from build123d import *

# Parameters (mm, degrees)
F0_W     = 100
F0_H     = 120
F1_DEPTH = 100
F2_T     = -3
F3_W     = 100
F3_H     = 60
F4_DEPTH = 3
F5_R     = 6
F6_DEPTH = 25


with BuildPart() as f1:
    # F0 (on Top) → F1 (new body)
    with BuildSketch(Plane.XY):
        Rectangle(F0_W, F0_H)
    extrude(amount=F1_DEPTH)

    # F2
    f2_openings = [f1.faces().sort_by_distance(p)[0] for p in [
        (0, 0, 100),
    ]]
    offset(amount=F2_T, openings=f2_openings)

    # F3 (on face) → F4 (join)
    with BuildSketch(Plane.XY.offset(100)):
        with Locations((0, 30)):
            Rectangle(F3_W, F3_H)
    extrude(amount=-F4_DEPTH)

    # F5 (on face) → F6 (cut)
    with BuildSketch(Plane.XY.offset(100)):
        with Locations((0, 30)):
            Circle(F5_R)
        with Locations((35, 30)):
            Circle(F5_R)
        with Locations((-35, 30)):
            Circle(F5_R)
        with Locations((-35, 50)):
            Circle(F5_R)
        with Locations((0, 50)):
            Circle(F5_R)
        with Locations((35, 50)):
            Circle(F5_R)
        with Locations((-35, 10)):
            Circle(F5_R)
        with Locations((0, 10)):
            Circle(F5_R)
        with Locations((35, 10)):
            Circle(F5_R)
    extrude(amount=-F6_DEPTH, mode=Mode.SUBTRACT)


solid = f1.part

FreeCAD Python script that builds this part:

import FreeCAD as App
import Part
import Sketcher

V = App.Vector


def faces_at(feature, points):
    """Names of the faces that lie closest to the given points."""
    faces = feature.Shape.Faces
    near = lambda p: min(range(len(faces)), key=lambda i: faces[i].distToShape(Part.Vertex(*p))[0])
    return sorted({f"Face{near(p) + 1}" for p in points})


def add_polygon(sketch, points):
    """Adds a closed chain of lines whose ends are joined by coincident constraints."""
    first, n = sketch.GeometryCount, len(points)
    for a, b in zip(points, points[1:] + points[:1]):
        sketch.addGeometry(Part.LineSegment(App.Vector(*a, 0), App.Vector(*b, 0)), False)
    for i in range(n):
        sketch.addConstraint(Sketcher.Constraint("Coincident", first + i, 2, first + (i + 1) % n, 1))

doc = App.newDocument("Part")
params = doc.addObject("Spreadsheet::Sheet", "Params")
for row, (alias, value) in enumerate([
    ("sketch1_width", "100 mm"),
    ("sketch1_height", "120 mm"),
    ("pad1_length", "100 mm"),
    ("thickness_wall", "3 mm"),
    ("sketch2_width", "100 mm"),
    ("sketch2_height", "60 mm"),
    ("pad2_length", "3 mm"),
    ("sketch3_diameter", "12 mm"),
    ("pocket1_length", "25 mm"),
], start=1):
    params.set(f"A{row}", alias)
    params.set(f"B{row}", "=" + value)
    params.setAlias(f"B{row}", alias)

body = doc.addObject("PartDesign::Body", "Body")

sketch1 = body.newObject("Sketcher::SketchObject", "Sketch")
sketch1.AttachmentSupport = (doc.getObject("XY_Plane"), [""])
sketch1.MapMode = "FlatFace"
add_polygon(sketch1, [(-50, 60), (-50, -60), (50, -60), (50, 60)])
sketch1.addConstraint([
    Sketcher.Constraint("Vertical", 0),
    Sketcher.Constraint("Horizontal", 1),
    Sketcher.Constraint("Vertical", 2),
    Sketcher.Constraint("Horizontal", 3),
    Sketcher.Constraint("Symmetric", 0, 2, 2, 2, -1, 1),
    Sketcher.Constraint("DistanceX", 1, 1, 1, 2, 100.0),
    Sketcher.Constraint("DistanceY", 0, 2, 0, 1, 120.0),
])
sketch1.setExpression("Constraints[9]", "Params.sketch1_width")
sketch1.setExpression("Constraints[10]", "Params.sketch1_height")
pad1 = body.newObject("PartDesign::Pad", "Pad")
pad1.Profile = sketch1
pad1.setExpression("Length", "Params.pad1_length")
doc.recompute()

thickness = body.newObject("PartDesign::Thickness", "Thickness")
thickness.Base = (pad1, faces_at(pad1, [(0, 0, 100)]))
thickness.setExpression("Value", "Params.thickness_wall")
thickness.Reversed = True
thickness.Join = "Arc"

sketch2 = body.newObject("Sketcher::SketchObject", "Sketch001")
sketch2.AttachmentSupport = (doc.getObject("XY_Plane"), [""])
sketch2.MapMode = "FlatFace"
sketch2.AttachmentOffset = App.Placement(V(0, 0, 100), App.Rotation())
add_polygon(sketch2, [(-50, 60), (-50, 0), (50, 0), (50, 60)])
sketch2.addConstraint([
    Sketcher.Constraint("Vertical", 0),
    Sketcher.Constraint("Horizontal", 1),
    Sketcher.Constraint("Vertical", 2),
    Sketcher.Constraint("Horizontal", 3),
    Sketcher.Constraint("Symmetric", 0, 2, 1, 2, -1, 1),
    Sketcher.Constraint("DistanceX", 1, 1, 1, 2, 100.0),
    Sketcher.Constraint("DistanceY", 0, 2, 0, 1, 60.0),
])
sketch2.setExpression("Constraints[9]", "Params.sketch2_width")
sketch2.setExpression("Constraints[10]", "Params.sketch2_height")
pad2 = body.newObject("PartDesign::Pad", "Pad001")
pad2.Profile = sketch2
pad2.setExpression("Length", "Params.pad2_length")
pad2.Reversed = True

sketch3 = body.newObject("Sketcher::SketchObject", "Sketch002")
sketch3.AttachmentSupport = (doc.getObject("XY_Plane"), [""])
sketch3.MapMode = "FlatFace"
sketch3.AttachmentOffset = App.Placement(V(0, 0, 100), App.Rotation())
sketch3.addGeometry([
    Part.Circle(V(0, 30, 0), V(0, 0, 1), 6),
    Part.Circle(V(35, 30, 0), V(0, 0, 1), 6),
    Part.Circle(V(-35, 30, 0), V(0, 0, 1), 6),
    Part.Circle(V(-35, 50, 0), V(0, 0, 1), 6),
    Part.Circle(V(0, 50, 0), V(0, 0, 1), 6),
    Part.Circle(V(35, 50, 0), V(0, 0, 1), 6),
    Part.Circle(V(-35, 10, 0), V(0, 0, 1), 6),
    Part.Circle(V(0, 10, 0), V(0, 0, 1), 6),
    Part.Circle(V(35, 10, 0), V(0, 0, 1), 6),
], False)
sketch3.addConstraint([
    Sketcher.Constraint("Equal", 0, 1),
    Sketcher.Constraint("Equal", 1, 2),
    Sketcher.Constraint("Equal", 2, 3),
    Sketcher.Constraint("Equal", 3, 4),
    Sketcher.Constraint("Equal", 4, 5),
    Sketcher.Constraint("Equal", 5, 6),
    Sketcher.Constraint("Equal", 6, 7),
    Sketcher.Constraint("Equal", 7, 8),
    Sketcher.Constraint("Symmetric", 1, 3, 2, 3, -2),
    Sketcher.Constraint("Symmetric", 3, 3, 5, 3, -2),
    Sketcher.Constraint("Symmetric", 6, 3, 8, 3, -2),
    Sketcher.Constraint("PointOnObject", 0, 3, -2),
    Sketcher.Constraint("PointOnObject", 4, 3, -2),
    Sketcher.Constraint("PointOnObject", 7, 3, -2),
    Sketcher.Constraint("Horizontal", 0, 3, 1, 3),
    Sketcher.Constraint("Horizontal", 3, 3, 4, 3),
    Sketcher.Constraint("Horizontal", 6, 3, 7, 3),
    Sketcher.Constraint("Vertical", 2, 3, 3, 3),
    Sketcher.Constraint("Vertical", 3, 3, 6, 3),
    Sketcher.Constraint("Diameter", 0, 12.0),
    Sketcher.Constraint("DistanceY", -1, 1, 0, 3, 30.0),
    Sketcher.Constraint("DistanceX", -1, 1, 1, 3, 35.0),
    Sketcher.Constraint("DistanceY", -1, 1, 3, 3, 50.0),
    Sketcher.Constraint("DistanceY", -1, 1, 6, 3, 10.0),
])
sketch3.setExpression("Constraints[19]", "Params.sketch3_diameter")
pocket1 = body.newObject("PartDesign::Pocket", "Pocket")
pocket1.Profile = sketch3
pocket1.setExpression("Length", "Params.pocket1_length")

doc.recompute()
